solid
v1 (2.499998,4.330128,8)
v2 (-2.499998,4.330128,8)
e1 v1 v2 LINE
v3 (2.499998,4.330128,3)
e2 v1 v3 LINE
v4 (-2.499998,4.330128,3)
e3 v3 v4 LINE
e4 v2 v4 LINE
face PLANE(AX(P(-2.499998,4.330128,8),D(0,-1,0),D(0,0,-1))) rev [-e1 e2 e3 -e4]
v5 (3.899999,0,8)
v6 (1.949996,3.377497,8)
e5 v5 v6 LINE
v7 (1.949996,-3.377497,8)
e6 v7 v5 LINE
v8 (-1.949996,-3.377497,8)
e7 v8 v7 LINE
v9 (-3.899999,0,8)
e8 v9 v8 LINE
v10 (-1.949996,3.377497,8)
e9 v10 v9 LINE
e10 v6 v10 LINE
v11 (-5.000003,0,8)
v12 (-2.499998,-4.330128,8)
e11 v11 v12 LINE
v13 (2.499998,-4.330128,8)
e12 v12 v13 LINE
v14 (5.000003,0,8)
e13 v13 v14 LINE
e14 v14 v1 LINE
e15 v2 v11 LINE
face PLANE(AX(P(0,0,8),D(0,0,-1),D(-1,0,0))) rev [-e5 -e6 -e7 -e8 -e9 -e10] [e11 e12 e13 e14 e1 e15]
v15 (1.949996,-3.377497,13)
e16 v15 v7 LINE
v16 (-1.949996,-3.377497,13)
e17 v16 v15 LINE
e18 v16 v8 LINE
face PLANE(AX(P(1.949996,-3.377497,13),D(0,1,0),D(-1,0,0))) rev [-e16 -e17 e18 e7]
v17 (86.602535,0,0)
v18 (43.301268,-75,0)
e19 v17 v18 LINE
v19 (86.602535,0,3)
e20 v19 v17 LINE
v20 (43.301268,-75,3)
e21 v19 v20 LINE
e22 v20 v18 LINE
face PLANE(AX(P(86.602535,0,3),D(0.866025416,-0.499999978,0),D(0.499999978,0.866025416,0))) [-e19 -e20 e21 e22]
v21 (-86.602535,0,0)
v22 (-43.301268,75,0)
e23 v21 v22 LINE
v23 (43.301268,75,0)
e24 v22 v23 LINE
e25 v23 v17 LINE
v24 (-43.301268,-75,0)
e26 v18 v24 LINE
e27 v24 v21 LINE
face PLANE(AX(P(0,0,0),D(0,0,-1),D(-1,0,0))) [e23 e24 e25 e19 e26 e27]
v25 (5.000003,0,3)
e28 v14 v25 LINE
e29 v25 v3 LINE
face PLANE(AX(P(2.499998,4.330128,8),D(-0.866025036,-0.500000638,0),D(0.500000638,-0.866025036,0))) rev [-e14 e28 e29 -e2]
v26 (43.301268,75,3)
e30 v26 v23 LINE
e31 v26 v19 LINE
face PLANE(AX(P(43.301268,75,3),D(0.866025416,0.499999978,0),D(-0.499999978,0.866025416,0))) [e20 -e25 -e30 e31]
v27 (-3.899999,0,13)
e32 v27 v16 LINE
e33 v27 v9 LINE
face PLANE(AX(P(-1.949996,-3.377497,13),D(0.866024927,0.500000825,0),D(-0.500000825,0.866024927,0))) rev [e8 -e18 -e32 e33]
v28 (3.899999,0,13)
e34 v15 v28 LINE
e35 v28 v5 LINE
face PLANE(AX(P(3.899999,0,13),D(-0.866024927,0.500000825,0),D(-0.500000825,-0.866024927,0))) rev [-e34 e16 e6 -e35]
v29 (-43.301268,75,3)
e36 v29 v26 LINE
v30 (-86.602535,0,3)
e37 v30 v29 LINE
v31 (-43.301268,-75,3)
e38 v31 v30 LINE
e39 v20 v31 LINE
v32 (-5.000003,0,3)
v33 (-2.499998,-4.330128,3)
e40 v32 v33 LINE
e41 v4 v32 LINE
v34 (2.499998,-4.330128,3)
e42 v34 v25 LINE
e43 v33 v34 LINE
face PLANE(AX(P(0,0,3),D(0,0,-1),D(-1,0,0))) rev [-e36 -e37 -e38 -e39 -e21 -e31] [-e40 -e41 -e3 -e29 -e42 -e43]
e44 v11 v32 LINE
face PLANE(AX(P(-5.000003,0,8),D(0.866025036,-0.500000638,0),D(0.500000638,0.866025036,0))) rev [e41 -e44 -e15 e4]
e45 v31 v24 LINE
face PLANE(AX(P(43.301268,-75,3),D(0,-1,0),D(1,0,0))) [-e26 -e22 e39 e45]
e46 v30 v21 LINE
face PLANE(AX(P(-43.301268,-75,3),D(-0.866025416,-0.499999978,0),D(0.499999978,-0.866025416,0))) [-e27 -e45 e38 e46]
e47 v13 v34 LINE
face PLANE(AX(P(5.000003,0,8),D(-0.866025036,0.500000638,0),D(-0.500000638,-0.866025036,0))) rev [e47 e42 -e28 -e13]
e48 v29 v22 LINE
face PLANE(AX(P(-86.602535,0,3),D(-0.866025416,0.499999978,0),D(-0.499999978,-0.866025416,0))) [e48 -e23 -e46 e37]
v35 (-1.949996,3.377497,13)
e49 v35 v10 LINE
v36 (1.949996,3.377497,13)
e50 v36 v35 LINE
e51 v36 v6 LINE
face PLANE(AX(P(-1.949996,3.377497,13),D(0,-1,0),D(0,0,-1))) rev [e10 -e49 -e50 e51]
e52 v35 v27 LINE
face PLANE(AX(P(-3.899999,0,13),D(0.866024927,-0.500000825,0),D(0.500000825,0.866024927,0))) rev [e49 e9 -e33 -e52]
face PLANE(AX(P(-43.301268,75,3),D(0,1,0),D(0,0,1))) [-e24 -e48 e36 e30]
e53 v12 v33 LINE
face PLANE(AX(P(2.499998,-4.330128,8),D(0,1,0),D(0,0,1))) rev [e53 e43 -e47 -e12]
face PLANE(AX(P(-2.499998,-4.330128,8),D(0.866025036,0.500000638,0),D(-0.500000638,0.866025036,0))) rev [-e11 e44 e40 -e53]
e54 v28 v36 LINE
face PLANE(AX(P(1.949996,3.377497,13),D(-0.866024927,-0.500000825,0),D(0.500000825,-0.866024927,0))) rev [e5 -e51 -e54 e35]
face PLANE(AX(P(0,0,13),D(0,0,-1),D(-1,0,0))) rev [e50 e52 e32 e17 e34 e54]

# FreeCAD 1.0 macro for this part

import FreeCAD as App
import Part
import Sketcher

V = App.Vector
Q = App.Units.Quantity

doc = App.newDocument("Part")
body = doc.addObject("PartDesign::Body", "Body")

sketch1 = body.newObject("Sketcher::SketchObject", "Sketch")
sketch1.AttachmentSupport = (doc.getObject("XY_Plane"), [""])
sketch1.MapMode = "FlatFace"
sketch1.addGeometry(Part.LineSegment(V(-87, 0, 0), V(-43, 75, 0)), False)
sketch1.addGeometry(Part.LineSegment(V(-43, 75, 0), V(43, 75, 0)), False)
sketch1.addGeometry(Part.LineSegment(V(43, 75, 0), V(87, 0, 0)), False)
sketch1.addGeometry(Part.LineSegment(V(87, 0, 0), V(43, -75, 0)), False)
sketch1.addGeometry(Part.LineSegment(V(43, -75, 0), V(-43, -75, 0)), False)
sketch1.addGeometry(Part.LineSegment(V(-43, -75, 0), V(-87, 0, 0)), False)
sketch1.addConstraint(Sketcher.Constraint("Coincident", 0, 2, 1, 1))
sketch1.addConstraint(Sketcher.Constraint("Coincident", 1, 2, 2, 1))
sketch1.addConstraint(Sketcher.Constraint("Coincident", 2, 2, 3, 1))
sketch1.addConstraint(Sketcher.Constraint("Coincident", 3, 2, 4, 1))
sketch1.addConstraint(Sketcher.Constraint("Coincident", 4, 2, 5, 1))
sketch1.addConstraint(Sketcher.Constraint("Coincident", 5, 2, 0, 1))
sketch1.addConstraint(Sketcher.Constraint("Horizontal", 1))
sketch1.addConstraint(Sketcher.Constraint("Horizontal", 4))
sketch1.addConstraint(Sketcher.Constraint("Symmetric", 0, 2, 3, 2, -1, 1))
sketch1.addConstraint(Sketcher.Constraint("Symmetric", 2, 2, 5, 2, -1, 1))
sketch1.addConstraint(Sketcher.Constraint("PointOnObject", 2, 2, -1))
sketch1.addConstraint(Sketcher.Constraint("Parallel", 2, 5))
sketch1.addConstraint(Sketcher.Constraint("Vertical", 1, 2, 3, 2))
sketch1.addConstraint(Sketcher.Constraint("Angle", 0, Q("60.000001 deg")))
sketch1.addConstraint(Sketcher.Constraint("DistanceY", -1, 1, 0, 2, 75.0))
sketch1.addConstraint(Sketcher.Constraint("DistanceX", 1, 1, 1, 2, 86.602535))
pad1 = body.newObject("PartDesign::Pad", "Pad")
pad1.Profile = sketch1
pad1.Length = 3

sketch2 = body.newObject("Sketcher::SketchObject", "Sketch001")
sketch2.AttachmentSupport = (doc.getObject("XY_Plane"), [""])
sketch2.MapMode = "FlatFace"
sketch2.AttachmentOffset = App.Placement(V(0, 0, 3), App.Rotation())
sketch2.addGeometry(Part.LineSegment(V(2.5, 4.3, 0), V(-2.5, 4.3, 0)), False)
sketch2.addGeometry(Part.LineSegment(V(-2.5, 4.3, 0), V(-5, 0, 0)), False)
sketch2.addGeometry(Part.LineSegment(V(-5, 0, 0), V(-2.5, -4.3, 0)), False)
sketch2.addGeometry(Part.LineSegment(V(-2.5, -4.3, 0), V(2.5, -4.3, 0)), False)
sketch2.addGeometry(Part.LineSegment(V(2.5, -4.3, 0), V(5, 0, 0)), False)
sketch2.addGeometry(Part.LineSegment(V(5, 0, 0), V(2.5, 4.3, 0)), False)
sketch2.addConstraint(Sketcher.Constraint("Coincident", 0, 2, 1, 1))
sketch2.addConstraint(Sketcher.Constraint("Coincident", 1, 2, 2, 1))
sketch2.addConstraint(Sketcher.Constraint("Coincident", 2, 2, 3, 1))
sketch2.addConstraint(Sketcher.Constraint("Coincident", 3, 2, 4, 1))
sketch2.addConstraint(Sketcher.Constraint("Coincident", 4, 2, 5, 1))
sketch2.addConstraint(Sketcher.Constraint("Coincident", 5, 2, 0, 1))
sketch2.addConstraint(Sketcher.Constraint("Horizontal", 0))
sketch2.addConstraint(Sketcher.Constraint("Horizontal", 3))
sketch2.addConstraint(Sketcher.Constraint("Symmetric", 0, 2, 3, 2, -1, 1))
sketch2.addConstraint(Sketcher.Constraint("Symmetric", 1, 2, 4, 2, -1, 1))
sketch2.addConstraint(Sketcher.Constraint("PointOnObject", 1, 2, -1))
sketch2.addConstraint(Sketcher.Constraint("Parallel", 2, 5))
sketch2.addConstraint(Sketcher.Constraint("Vertical", 0, 2, 2, 2))
sketch2.addConstraint(Sketcher.Constraint("DistanceX", 1, 2, 3, 2, 7.5))
sketch2.addConstraint(Sketcher.Constraint("DistanceX", 0, 2, 0, 1, 4.999995))
sketch2.addConstraint(Sketcher.Constraint("DistanceY", -1, 1, 0, 2, 4.330128))
pad2 = body.newObject("PartDesign::Pad", "Pad001")
pad2.Profile = sketch2
pad2.Length = 5

sketch3 = body.newObject("Sketcher::SketchObject", "Sketch002")
sketch3.AttachmentSupport = (doc.getObject("XY_Plane"), [""])
sketch3.MapMode = "FlatFace"
sketch3.AttachmentOffset = App.Placement(V(0, 0, 8), App.Rotation())
sketch3.addGeometry(Part.LineSegment(V(-3.9, 0, 0), V(-1.9, -3.4, 0)), False)
sketch3.addGeometry(Part.LineSegment(V(-1.9, -3.4, 0), V(1.9, -3.4, 0)), False)
sketch3.addGeometry(Part.LineSegment(V(1.9, -3.4, 0), V(3.9, 0, 0)), False)
sketch3.addGeometry(Part.LineSegment(V(3.9, 0, 0), V(1.9, 3.4, 0)), False)
sketch3.addGeometry(Part.LineSegment(V(1.9, 3.4, 0), V(-1.9, 3.4, 0)), False)
sketch3.addGeometry(Part.LineSegment(V(-1.9, 3.4, 0), V(-3.9, 0, 0)), False)
sketch3.addConstraint(Sketcher.Constraint("Coincident", 0, 2, 1, 1))
sketch3.addConstraint(Sketcher.Constraint("Coincident", 1, 2, 2, 1))
sketch3.addConstraint(Sketcher.Constraint("Coincident", 2, 2, 3, 1))
sketch3.addConstraint(Sketcher.Constraint("Coincident", 3, 2, 4, 1))
sketch3.addConstraint(Sketcher.Constraint("Coincident", 4, 2, 5, 1))
sketch3.addConstraint(Sketcher.Constraint("Coincident", 5, 2, 0, 1))
sketch3.addConstraint(Sketcher.Constraint("Horizontal", 1))
sketch3.addConstraint(Sketcher.Constraint("Horizontal", 4))
sketch3.addConstraint(Sketcher.Constraint("Symmetric", 0, 2, 3, 2, -1, 1))
sketch3.addConstraint(Sketcher.Constraint("Symmetric", 2, 2, 5, 2, -1, 1))
sketch3.addConstraint(Sketcher.Constraint("PointOnObject", 2, 2, -1))
sketch3.addConstraint(Sketcher.Constraint("Parallel", 2, 5))
sketch3.addConstraint(Sketcher.Constraint("Vertical", 1, 2, 3, 2))
sketch3.addConstraint(Sketcher.Constraint("Distance", 0, 3.9))
sketch3.addConstraint(Sketcher.Constraint("DistanceX", -1, 1, 2, 2, 3.899999))
sketch3.addConstraint(Sketcher.Constraint("DistanceX", 1, 1, 1, 2, 3.899992))
pad3 = body.newObject("PartDesign::Pad", "Pad002")
pad3.Profile = sketch3
pad3.Length = 5

doc.recompute()
